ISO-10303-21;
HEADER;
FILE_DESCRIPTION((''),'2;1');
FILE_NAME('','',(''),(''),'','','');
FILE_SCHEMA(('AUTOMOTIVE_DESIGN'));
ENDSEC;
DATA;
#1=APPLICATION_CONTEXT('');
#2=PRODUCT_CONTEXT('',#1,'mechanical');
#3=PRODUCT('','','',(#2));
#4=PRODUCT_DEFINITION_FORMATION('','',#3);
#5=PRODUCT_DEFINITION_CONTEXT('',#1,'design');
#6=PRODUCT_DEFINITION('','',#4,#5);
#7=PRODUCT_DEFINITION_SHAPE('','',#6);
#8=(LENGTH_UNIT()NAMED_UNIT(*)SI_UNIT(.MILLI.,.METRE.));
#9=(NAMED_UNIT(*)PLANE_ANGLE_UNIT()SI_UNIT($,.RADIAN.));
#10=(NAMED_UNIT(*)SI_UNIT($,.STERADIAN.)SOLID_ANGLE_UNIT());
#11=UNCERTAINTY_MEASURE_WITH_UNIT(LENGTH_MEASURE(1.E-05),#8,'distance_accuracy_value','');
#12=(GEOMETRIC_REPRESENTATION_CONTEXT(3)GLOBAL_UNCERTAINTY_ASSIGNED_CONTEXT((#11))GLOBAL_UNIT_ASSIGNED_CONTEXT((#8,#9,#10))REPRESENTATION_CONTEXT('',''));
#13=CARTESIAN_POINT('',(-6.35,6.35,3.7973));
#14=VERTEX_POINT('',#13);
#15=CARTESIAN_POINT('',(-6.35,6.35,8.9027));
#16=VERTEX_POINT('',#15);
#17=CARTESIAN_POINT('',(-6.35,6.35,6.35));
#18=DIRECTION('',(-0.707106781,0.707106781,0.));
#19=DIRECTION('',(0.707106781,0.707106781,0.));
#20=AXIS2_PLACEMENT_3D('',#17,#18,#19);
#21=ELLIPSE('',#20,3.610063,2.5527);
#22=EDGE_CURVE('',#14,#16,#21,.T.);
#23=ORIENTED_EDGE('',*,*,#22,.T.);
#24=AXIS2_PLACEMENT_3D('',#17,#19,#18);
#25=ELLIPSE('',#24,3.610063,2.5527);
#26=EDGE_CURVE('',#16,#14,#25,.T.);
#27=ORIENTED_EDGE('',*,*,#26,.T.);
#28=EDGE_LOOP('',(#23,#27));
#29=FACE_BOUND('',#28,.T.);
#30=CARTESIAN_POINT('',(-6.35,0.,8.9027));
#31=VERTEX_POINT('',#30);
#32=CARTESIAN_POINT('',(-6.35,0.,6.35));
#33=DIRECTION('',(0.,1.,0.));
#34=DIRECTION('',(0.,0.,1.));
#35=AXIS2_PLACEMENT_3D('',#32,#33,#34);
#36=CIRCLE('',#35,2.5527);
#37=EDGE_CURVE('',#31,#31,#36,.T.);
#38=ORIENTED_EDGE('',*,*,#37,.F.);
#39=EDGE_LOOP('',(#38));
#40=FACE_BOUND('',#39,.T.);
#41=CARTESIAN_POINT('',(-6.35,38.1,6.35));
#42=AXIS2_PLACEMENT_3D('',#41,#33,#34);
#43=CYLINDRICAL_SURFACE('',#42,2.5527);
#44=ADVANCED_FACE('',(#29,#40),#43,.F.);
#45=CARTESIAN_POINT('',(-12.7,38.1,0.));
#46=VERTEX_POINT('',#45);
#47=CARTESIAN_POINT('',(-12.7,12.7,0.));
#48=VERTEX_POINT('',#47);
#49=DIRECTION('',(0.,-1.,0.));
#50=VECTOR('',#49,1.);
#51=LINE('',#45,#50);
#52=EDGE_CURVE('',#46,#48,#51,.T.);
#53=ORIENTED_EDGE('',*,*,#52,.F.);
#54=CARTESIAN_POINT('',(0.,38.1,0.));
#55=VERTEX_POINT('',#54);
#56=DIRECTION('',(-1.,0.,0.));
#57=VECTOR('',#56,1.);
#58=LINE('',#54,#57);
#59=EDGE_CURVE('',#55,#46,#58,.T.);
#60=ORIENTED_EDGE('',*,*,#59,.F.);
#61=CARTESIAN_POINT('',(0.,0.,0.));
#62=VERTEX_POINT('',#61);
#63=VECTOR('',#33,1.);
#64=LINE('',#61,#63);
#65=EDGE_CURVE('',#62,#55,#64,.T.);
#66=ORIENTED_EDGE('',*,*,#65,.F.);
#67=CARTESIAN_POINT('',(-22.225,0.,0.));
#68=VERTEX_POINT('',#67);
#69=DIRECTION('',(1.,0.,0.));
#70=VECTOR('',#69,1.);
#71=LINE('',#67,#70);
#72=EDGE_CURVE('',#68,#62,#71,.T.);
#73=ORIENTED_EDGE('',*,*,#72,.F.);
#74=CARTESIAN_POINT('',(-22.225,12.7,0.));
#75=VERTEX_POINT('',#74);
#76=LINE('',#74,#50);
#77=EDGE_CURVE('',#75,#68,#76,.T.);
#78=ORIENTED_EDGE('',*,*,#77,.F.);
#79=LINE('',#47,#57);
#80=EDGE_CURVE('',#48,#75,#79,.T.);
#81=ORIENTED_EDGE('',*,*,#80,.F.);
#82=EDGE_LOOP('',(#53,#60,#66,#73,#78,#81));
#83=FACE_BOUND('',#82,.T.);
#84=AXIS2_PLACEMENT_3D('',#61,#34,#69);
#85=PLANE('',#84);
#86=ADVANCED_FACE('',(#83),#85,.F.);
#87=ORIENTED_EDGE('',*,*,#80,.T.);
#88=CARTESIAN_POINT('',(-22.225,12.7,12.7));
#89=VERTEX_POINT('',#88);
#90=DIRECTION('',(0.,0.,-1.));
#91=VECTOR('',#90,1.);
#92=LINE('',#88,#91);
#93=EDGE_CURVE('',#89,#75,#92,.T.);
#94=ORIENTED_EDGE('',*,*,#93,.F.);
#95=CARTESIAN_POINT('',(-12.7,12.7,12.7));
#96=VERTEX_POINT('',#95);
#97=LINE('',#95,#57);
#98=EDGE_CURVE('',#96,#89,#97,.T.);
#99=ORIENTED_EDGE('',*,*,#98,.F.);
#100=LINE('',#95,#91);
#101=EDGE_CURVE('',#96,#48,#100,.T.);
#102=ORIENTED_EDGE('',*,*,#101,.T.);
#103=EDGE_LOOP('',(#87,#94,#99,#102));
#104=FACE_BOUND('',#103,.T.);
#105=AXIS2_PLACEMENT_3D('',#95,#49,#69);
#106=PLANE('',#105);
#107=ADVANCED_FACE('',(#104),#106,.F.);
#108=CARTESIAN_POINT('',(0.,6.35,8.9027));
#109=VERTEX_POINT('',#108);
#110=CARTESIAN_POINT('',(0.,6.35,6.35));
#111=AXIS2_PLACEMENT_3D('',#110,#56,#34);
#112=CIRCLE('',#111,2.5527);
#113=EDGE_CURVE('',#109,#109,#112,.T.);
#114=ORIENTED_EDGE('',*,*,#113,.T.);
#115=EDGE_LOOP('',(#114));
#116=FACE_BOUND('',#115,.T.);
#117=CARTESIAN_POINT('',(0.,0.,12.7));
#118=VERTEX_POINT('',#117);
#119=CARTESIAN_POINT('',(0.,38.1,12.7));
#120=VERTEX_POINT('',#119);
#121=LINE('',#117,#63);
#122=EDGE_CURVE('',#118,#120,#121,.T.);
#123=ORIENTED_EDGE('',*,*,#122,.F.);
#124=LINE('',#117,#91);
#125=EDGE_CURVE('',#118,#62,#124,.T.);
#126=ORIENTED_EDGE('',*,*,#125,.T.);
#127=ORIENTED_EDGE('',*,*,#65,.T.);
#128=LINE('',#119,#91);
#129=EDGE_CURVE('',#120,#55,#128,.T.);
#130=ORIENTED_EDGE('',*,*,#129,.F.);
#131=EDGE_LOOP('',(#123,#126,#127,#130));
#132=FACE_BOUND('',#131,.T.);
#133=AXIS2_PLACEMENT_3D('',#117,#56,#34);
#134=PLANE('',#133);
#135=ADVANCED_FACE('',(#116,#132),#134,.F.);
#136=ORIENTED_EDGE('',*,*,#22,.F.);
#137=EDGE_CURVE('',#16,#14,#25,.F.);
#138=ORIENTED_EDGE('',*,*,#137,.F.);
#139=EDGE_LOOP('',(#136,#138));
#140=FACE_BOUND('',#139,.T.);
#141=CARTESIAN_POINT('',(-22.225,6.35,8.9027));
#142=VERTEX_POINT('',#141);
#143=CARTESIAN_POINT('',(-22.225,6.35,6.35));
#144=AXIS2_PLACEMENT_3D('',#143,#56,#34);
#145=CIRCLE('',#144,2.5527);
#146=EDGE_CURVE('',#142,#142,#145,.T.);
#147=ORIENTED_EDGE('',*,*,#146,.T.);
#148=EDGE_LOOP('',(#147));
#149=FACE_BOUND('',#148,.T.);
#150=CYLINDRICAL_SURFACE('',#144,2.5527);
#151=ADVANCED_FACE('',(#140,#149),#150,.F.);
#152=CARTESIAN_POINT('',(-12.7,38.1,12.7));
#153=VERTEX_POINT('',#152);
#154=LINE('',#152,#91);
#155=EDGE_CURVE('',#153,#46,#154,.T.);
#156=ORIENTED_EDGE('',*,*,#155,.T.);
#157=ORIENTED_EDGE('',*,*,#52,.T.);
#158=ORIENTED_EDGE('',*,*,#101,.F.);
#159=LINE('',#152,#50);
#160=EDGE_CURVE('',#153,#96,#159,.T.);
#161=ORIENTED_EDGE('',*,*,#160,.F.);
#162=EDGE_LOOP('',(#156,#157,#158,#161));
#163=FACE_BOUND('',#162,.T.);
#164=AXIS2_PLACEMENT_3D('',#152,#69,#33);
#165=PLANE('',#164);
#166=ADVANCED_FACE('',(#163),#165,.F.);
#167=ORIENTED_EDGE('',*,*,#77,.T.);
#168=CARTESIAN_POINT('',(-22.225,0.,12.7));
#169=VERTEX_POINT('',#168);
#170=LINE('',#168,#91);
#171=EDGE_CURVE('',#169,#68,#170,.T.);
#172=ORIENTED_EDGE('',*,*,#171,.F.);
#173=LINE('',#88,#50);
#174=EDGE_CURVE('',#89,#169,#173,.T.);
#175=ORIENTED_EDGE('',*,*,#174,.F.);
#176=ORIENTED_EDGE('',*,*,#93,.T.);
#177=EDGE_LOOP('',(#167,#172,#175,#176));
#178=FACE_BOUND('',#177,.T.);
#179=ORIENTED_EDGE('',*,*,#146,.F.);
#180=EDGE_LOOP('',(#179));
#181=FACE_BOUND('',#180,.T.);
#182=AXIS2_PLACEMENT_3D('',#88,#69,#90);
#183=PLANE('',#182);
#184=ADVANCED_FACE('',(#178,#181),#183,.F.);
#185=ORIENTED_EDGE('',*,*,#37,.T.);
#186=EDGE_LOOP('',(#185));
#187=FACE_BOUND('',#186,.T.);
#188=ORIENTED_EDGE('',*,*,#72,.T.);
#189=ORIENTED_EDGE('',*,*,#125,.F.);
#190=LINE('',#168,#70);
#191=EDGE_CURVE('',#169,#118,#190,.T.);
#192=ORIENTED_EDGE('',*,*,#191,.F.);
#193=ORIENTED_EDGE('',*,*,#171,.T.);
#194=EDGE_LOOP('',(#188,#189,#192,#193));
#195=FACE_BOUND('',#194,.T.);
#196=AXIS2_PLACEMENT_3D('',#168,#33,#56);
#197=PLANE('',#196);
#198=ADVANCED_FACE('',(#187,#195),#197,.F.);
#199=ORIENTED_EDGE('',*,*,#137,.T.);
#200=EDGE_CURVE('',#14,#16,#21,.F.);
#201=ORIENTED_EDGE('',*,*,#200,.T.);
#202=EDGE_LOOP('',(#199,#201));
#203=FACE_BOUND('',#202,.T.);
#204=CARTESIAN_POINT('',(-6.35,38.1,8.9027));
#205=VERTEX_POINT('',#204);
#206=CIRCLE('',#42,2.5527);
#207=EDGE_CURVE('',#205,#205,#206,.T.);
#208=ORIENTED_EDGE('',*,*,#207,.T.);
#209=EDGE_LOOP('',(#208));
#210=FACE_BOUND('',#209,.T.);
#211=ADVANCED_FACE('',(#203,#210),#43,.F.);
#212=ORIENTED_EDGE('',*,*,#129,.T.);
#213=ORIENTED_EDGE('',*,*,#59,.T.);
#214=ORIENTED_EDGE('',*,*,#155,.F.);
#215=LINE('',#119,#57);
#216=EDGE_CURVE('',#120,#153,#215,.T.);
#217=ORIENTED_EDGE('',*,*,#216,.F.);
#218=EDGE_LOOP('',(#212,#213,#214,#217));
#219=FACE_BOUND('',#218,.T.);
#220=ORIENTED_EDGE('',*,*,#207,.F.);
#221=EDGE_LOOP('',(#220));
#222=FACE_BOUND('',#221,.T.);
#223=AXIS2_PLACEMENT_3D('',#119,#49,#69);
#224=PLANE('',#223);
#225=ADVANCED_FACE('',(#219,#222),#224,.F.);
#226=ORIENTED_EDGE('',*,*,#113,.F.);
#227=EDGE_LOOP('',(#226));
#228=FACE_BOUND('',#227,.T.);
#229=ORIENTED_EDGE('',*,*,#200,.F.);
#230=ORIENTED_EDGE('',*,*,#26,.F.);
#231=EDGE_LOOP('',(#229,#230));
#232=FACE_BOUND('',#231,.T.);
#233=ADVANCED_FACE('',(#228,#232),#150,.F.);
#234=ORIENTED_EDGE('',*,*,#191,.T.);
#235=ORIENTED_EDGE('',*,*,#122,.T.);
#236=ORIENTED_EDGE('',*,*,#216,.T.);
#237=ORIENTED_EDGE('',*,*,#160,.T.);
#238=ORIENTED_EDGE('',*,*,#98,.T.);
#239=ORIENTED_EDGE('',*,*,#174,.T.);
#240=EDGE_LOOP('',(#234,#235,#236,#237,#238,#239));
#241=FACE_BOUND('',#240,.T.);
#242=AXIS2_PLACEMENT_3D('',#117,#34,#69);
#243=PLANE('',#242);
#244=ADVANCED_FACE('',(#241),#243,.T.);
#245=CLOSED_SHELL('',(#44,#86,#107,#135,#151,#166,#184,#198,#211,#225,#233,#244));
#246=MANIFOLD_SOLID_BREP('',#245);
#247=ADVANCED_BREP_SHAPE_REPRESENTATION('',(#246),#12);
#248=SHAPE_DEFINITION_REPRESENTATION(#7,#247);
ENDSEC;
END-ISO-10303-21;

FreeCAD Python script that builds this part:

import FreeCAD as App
import Part
import Sketcher

V = App.Vector
Q = App.Units.Quantity

doc = App.newDocument("Part")
body = doc.addObject("PartDesign::Body", "Body")

# Sketch on XY plane
sketch1 = body.newObject("Sketcher::SketchObject", "Sketch")
sketch1.AttachmentSupport = (doc.getObject("XY_Plane"), [""])
sketch1.MapMode = "FlatFace"
sketch1.addGeometry([
    Part.LineSegment(V(0, 0, 0), V(0, 38, 0)),  # 0
    Part.LineSegment(V(0, 38, 0), V(-13, 38, 0)),  # 1
    Part.LineSegment(V(-13, 38, 0), V(-13, 13, 0)),  # 2
    Part.LineSegment(V(-13, 13, 0), V(-22, 13, 0)),  # 3
    Part.LineSegment(V(-22, 13, 0), V(-22, 0, 0)),  # 4
    Part.LineSegment(V(-22, 0, 0), V(0, 0, 0)),  # 5
], False)
sketch1.addConstraint([
    Sketcher.Constraint("Coincident", 0, 2, 1, 1),
    Sketcher.Constraint("Coincident", 1, 2, 2, 1),
    Sketcher.Constraint("Coincident", 2, 2, 3, 1),
    Sketcher.Constraint("Coincident", 3, 2, 4, 1),
    Sketcher.Constraint("Coincident", 4, 2, 5, 1),
    Sketcher.Constraint("Coincident", 5, 2, 0, 1),
    Sketcher.Constraint("Vertical", 0),
    Sketcher.Constraint("Horizontal", 1),
    Sketcher.Constraint("Vertical", 2),
    Sketcher.Constraint("Horizontal", 3),
    Sketcher.Constraint("Vertical", 4),
    Sketcher.Constraint("Horizontal", 5),
    Sketcher.Constraint("Coincident", 5, 2, -1, 1),
    Sketcher.Constraint("Equal", 1, 4),
    Sketcher.Constraint("DistanceY", 2, 2, 2, 1, Q("1 in")),
    Sketcher.Constraint("DistanceX", 1, 2, 1, 1, Q("0.5 in")),
    Sketcher.Constraint("DistanceX", 3, 2, 3, 1, Q("0.375 in")),
])
pad1 = body.newObject("PartDesign::Pad", "Pad")
pad1.Profile = sketch1
pad1.Length = Q("0.5 in")

# Sketch on XZ plane
sketch2 = body.newObject("Sketcher::SketchObject", "Sketch001")
sketch2.AttachmentSupport = (doc.getObject("XZ_Plane"), [""])
sketch2.MapMode = "FlatFace"
sketch2.AttachmentOffset = App.Placement(V(0, 0, -1.5 * 25.4), App.Rotation())
sketch2.addGeometry(Part.Circle(V(-6.3, 6.3, 0), V(0, 0, 1), 2.6), False)
sketch2.addConstraint([
    Sketcher.Constraint("Diameter", 0, Q("0.201 in")),
    Sketcher.Constraint("DistanceX", 0, 3, -1, 1, Q("0.25 in")),
    Sketcher.Constraint("DistanceY", -1, 1, 0, 3, Q("0.25 in")),
])
doc.recompute()
hole = body.newObject("PartDesign::Hole", "Hole")
hole.Profile = sketch2
hole.ThreadType = "None"
hole.Diameter = Q("0.201 in")
hole.DepthType = "ThroughAll"
hole.Reversed = True

# Sketch on YZ plane
sketch3 = body.newObject("Sketcher::SketchObject", "Sketch002")
sketch3.AttachmentSupport = (doc.getObject("YZ_Plane"), [""])
sketch3.MapMode = "FlatFace"
sketch3.AttachmentOffset = App.Placement(V(0, 0, -0.875 * 25.4), App.Rotation())
sketch3.addGeometry(Part.Circle(V(6.3, 6.3, 0), V(0, 0, 1), 2.6), False)
sketch3.addConstraint([
    Sketcher.Constraint("Diameter", 0, Q("0.201 in")),
    Sketcher.Constraint("DistanceX", -1, 1, 0, 3, Q("0.25 in")),
    Sketcher.Constraint("DistanceY", -1, 1, 0, 3, Q("0.25 in")),
])
doc.recompute()
hole2 = body.newObject("PartDesign::Hole", "Hole001")
hole2.Profile = sketch3
hole2.ThreadType = "None"
hole2.Diameter = Q("0.201 in")
hole2.DepthType = "ThroughAll"
hole2.Reversed = True

doc.recompute()
